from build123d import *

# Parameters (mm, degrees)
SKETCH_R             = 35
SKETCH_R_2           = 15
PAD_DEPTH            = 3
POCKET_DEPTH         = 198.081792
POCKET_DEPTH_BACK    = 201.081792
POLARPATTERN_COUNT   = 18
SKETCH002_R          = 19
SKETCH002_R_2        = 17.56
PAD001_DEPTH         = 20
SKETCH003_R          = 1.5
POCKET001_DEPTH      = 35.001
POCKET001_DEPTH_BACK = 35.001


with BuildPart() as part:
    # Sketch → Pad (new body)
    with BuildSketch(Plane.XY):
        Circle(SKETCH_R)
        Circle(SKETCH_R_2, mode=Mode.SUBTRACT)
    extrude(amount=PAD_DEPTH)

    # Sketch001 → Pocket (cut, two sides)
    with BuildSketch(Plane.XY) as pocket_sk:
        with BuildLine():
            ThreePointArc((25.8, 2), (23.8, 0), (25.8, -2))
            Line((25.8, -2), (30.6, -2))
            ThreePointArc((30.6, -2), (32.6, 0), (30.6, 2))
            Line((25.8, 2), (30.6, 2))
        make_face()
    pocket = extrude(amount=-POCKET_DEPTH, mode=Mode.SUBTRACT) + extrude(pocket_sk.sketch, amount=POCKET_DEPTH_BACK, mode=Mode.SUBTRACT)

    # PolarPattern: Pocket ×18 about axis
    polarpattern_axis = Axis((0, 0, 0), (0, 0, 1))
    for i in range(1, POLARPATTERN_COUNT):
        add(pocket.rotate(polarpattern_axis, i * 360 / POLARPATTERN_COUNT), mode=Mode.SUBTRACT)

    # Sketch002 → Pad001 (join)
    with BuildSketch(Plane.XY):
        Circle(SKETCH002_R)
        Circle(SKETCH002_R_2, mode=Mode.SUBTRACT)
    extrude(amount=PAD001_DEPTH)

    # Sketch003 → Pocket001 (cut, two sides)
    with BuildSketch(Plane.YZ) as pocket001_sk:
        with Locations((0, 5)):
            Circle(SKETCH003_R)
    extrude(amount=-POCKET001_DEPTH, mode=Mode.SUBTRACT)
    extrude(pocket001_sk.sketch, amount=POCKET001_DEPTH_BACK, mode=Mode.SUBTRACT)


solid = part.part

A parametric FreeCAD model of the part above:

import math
import FreeCAD as App
import Part
import Sketcher

V = App.Vector
Q = App.Units.Quantity

doc = App.newDocument("Part")
body = doc.addObject("PartDesign::Body", "Body")

# Sketch on XY plane
sketch1 = body.newObject("Sketcher::SketchObject", "Sketch")
sketch1.AttachmentSupport = (doc.getObject("XY_Plane"), [""])
sketch1.MapMode = "FlatFace"
sketch1.addGeometry([
    Part.Circle(V(0, 0, 0), V(0, 0, 1), 35),
    Part.Circle(V(0, 0, 0), V(0, 0, 1), 15),
], False)
sketch1.addConstraint([
    Sketcher.Constraint("Coincident", 0, 3, -1, 1),
    Sketcher.Constraint("Coincident", 1, 3, -1, 1),
    Sketcher.Constraint("Diameter", 0, Q("70 mm")),
    Sketcher.Constraint("Diameter", 1, Q("30 mm")),
])
pad1 = body.newObject("PartDesign::Pad", "Pad")
pad1.Profile = sketch1
pad1.Length = 3

# Sketch on XY plane
sketch2 = body.newObject("Sketcher::SketchObject", "Sketch001")
sketch2.AttachmentSupport = (doc.getObject("XY_Plane"), [""])
sketch2.MapMode = "FlatFace"
sketch2.addGeometry([
    Part.ArcOfCircle(Part.Circle(V(25.8, 0, 0), V(0, 0, 1), 2), math.radians(90), math.radians(270)),
    Part.LineSegment(V(25.8, -2, 0), V(30.6, -2, 0)),
    Part.ArcOfCircle(Part.Circle(V(30.6, 0, 0), V(0, 0, 1), 2), math.radians(-90), math.radians(90)),
    Part.LineSegment(V(30.6, 2, 0), V(25.8, 2, 0)),
], False)
sketch2.addConstraint([
    Sketcher.Constraint("Tangent", 0, 2, 1, 1),
    Sketcher.Constraint("Tangent", 1, 2, 2, 1),
    Sketcher.Constraint("Tangent", 2, 2, 3, 1),
    Sketcher.Constraint("Tangent", 3, 2, 0, 1),
    Sketcher.Constraint("Horizontal", 1),
    Sketcher.Constraint("Horizontal", 3),
    Sketcher.Constraint("PointOnObject", 0, 3, -1),
    Sketcher.Constraint("Radius", 0, Q("2 mm")),
    Sketcher.Constraint("DistanceX", 1, 1, 1, 2, Q("4.8 mm")),
    Sketcher.Constraint("DistanceX", -1, 1, 0, 3, Q("25.8 mm")),
])
pocket1 = body.newObject("PartDesign::Pocket", "Pocket")
pocket1.Profile = sketch2
pocket1.Type = "ThroughAll"
pocket1.Midplane = True
doc.recompute()

polarpattern = body.newObject("PartDesign::PolarPattern", "PolarPattern")
polarpattern.Originals = [pocket1]
polarpattern.Axis = (doc.getObject("Z_Axis"), [""])
polarpattern.Angle = 360
polarpattern.Occurrences = 18
body.Tip = polarpattern

# Sketch on XY plane
sketch3 = body.newObject("Sketcher::SketchObject", "Sketch002")
sketch3.AttachmentSupport = (doc.getObject("XY_Plane"), [""])
sketch3.MapMode = "FlatFace"
sketch3.addGeometry([
    Part.Circle(V(0, 0, 0), V(0, 0, 1), 19),
    Part.Circle(V(0, 0, 0), V(0, 0, 1), 18),
], False)
sketch3.addConstraint([
    Sketcher.Constraint("Coincident", 0, 3, -1, 1),
    Sketcher.Constraint("Coincident", 1, 3, -1, 1),
    Sketcher.Constraint("Diameter", 0, Q("38 mm")),
    Sketcher.Constraint("Diameter", 1, Q("35.12 mm")),
])
pad2 = body.newObject("PartDesign::Pad", "Pad001")
pad2.Profile = sketch3
pad2.Length = 20

# Sketch on YZ plane
sketch4 = body.newObject("Sketcher::SketchObject", "Sketch003")
sketch4.AttachmentSupport = (doc.getObject("YZ_Plane"), [""])
sketch4.MapMode = "FlatFace"
sketch4.addGeometry(Part.Circle(V(0, 5, 0), V(0, 0, 1), 1.5), False)
sketch4.addConstraint([
    Sketcher.Constraint("PointOnObject", 0, 3, -2),
    Sketcher.Constraint("Diameter", 0, Q("3 mm")),
    Sketcher.Constraint("DistanceY", -1, 1, 0, 3, Q("5 mm")),
])
pocket2 = body.newObject("PartDesign::Pocket", "Pocket001")
pocket2.Profile = sketch4
pocket2.Type = "ThroughAll"
pocket2.Midplane = True

doc.recompute()
